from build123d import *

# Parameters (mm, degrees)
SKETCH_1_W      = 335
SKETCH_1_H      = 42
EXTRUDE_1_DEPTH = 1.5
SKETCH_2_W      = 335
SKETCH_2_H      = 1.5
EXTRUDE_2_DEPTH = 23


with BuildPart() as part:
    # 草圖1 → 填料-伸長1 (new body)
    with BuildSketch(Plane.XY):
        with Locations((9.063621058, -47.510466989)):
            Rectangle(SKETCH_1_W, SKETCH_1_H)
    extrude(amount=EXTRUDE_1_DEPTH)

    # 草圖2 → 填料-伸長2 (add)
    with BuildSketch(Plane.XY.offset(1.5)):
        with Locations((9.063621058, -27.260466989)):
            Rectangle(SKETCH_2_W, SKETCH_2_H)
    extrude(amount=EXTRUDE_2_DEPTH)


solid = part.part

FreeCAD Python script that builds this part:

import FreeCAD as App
import Part
import Sketcher

V = App.Vector
Q = App.Units.Quantity


def add_polygon(sketch, points):
    """Adds a closed chain of lines whose ends are joined by coincident constraints."""
    first, n = sketch.GeometryCount, len(points)
    for a, b in zip(points, points[1:] + points[:1]):
        sketch.addGeometry(Part.LineSegment(App.Vector(*a, 0), App.Vector(*b, 0)), False)
    for i in range(n):
        sketch.addConstraint(Sketcher.Constraint("Coincident", first + i, 2, first + (i + 1) % n, 1))

doc = App.newDocument("Part")
params = doc.addObject("Spreadsheet::Sheet", "Params")
for row, (alias, value) in enumerate([
    ("sketch1_width", "335 mm"),
    ("sketch1_height", "42 mm"),
    ("pad1_length", "1.5 mm"),
    ("sketch2_width", "335 mm"),
    ("sketch2_height", "1.5 mm"),
    ("pad2_length", "23 mm"),
], start=1):
    params.set(f"A{row}", alias)
    params.set(f"B{row}", "=" + value)
    params.setAlias(f"B{row}", alias)

body = doc.addObject("PartDesign::Body", "Body")

sketch1 = body.newObject("Sketcher::SketchObject", "Sketch")
sketch1.AttachmentSupport = (doc.getObject("XY_Plane"), [""])
sketch1.MapMode = "FlatFace"
add_polygon(sketch1, [(-158, -27), (-158, -69), (177, -69), (177, -27)])
sketch1.addConstraint(Sketcher.Constraint("Vertical", 0))
sketch1.addConstraint(Sketcher.Constraint("Horizontal", 1))
sketch1.addConstraint(Sketcher.Constraint("Vertical", 2))
sketch1.addConstraint(Sketcher.Constraint("Horizontal", 3))
sketch1.addConstraint(Sketcher.Constraint("DistanceX", 1, 1, 1, 2, Q("335 mm")))
sketch1.addConstraint(Sketcher.Constraint("DistanceY", 0, 2, 0, 1, Q("42 mm")))
sketch1.addConstraint(Sketcher.Constraint("DistanceX", 0, 2, -1, 1, Q("158.436379 mm")))
sketch1.addConstraint(Sketcher.Constraint("DistanceY", 0, 2, -1, 1, Q("68.510467 mm")))
sketch1.setExpression("Constraints[8]", "Params.sketch1_width")
sketch1.setExpression("Constraints[9]", "Params.sketch1_height")
pad1 = body.newObject("PartDesign::Pad", "Pad")
pad1.Profile = sketch1
pad1.setExpression("Length", "Params.pad1_length")

sketch2 = body.newObject("Sketcher::SketchObject", "Sketch001")
sketch2.AttachmentSupport = (doc.getObject("XY_Plane"), [""])
sketch2.MapMode = "FlatFace"
sketch2.AttachmentOffset = App.Placement(V(0, 0, 1.5), App.Rotation())
add_polygon(sketch2, [(-158.4, -26.5), (-158.4, -28), (176.6, -28), (176.6, -26.5)])
sketch2.addConstraint(Sketcher.Constraint("Vertical", 0))
sketch2.addConstraint(Sketcher.Constraint("Horizontal", 1))
sketch2.addConstraint(Sketcher.Constraint("Vertical", 2))
sketch2.addConstraint(Sketcher.Constraint("Horizontal", 3))
sketch2.addConstraint(Sketcher.Constraint("DistanceX", 1, 1, 1, 2, Q("335 mm")))
sketch2.addConstraint(Sketcher.Constraint("DistanceY", 0, 2, 0, 1, Q("1.5 mm")))
sketch2.addConstraint(Sketcher.Constraint("DistanceX", 0, 2, -1, 1, Q("158.436379 mm")))
sketch2.addConstraint(Sketcher.Constraint("DistanceY", 0, 2, -1, 1, Q("28.010467 mm")))
sketch2.setExpression("Constraints[8]", "Params.sketch2_width")
sketch2.setExpression("Constraints[9]", "Params.sketch2_height")
pad2 = body.newObject("PartDesign::Pad", "Pad001")
pad2.Profile = sketch2
pad2.setExpression("Length", "Params.pad2_length")

doc.recompute()
